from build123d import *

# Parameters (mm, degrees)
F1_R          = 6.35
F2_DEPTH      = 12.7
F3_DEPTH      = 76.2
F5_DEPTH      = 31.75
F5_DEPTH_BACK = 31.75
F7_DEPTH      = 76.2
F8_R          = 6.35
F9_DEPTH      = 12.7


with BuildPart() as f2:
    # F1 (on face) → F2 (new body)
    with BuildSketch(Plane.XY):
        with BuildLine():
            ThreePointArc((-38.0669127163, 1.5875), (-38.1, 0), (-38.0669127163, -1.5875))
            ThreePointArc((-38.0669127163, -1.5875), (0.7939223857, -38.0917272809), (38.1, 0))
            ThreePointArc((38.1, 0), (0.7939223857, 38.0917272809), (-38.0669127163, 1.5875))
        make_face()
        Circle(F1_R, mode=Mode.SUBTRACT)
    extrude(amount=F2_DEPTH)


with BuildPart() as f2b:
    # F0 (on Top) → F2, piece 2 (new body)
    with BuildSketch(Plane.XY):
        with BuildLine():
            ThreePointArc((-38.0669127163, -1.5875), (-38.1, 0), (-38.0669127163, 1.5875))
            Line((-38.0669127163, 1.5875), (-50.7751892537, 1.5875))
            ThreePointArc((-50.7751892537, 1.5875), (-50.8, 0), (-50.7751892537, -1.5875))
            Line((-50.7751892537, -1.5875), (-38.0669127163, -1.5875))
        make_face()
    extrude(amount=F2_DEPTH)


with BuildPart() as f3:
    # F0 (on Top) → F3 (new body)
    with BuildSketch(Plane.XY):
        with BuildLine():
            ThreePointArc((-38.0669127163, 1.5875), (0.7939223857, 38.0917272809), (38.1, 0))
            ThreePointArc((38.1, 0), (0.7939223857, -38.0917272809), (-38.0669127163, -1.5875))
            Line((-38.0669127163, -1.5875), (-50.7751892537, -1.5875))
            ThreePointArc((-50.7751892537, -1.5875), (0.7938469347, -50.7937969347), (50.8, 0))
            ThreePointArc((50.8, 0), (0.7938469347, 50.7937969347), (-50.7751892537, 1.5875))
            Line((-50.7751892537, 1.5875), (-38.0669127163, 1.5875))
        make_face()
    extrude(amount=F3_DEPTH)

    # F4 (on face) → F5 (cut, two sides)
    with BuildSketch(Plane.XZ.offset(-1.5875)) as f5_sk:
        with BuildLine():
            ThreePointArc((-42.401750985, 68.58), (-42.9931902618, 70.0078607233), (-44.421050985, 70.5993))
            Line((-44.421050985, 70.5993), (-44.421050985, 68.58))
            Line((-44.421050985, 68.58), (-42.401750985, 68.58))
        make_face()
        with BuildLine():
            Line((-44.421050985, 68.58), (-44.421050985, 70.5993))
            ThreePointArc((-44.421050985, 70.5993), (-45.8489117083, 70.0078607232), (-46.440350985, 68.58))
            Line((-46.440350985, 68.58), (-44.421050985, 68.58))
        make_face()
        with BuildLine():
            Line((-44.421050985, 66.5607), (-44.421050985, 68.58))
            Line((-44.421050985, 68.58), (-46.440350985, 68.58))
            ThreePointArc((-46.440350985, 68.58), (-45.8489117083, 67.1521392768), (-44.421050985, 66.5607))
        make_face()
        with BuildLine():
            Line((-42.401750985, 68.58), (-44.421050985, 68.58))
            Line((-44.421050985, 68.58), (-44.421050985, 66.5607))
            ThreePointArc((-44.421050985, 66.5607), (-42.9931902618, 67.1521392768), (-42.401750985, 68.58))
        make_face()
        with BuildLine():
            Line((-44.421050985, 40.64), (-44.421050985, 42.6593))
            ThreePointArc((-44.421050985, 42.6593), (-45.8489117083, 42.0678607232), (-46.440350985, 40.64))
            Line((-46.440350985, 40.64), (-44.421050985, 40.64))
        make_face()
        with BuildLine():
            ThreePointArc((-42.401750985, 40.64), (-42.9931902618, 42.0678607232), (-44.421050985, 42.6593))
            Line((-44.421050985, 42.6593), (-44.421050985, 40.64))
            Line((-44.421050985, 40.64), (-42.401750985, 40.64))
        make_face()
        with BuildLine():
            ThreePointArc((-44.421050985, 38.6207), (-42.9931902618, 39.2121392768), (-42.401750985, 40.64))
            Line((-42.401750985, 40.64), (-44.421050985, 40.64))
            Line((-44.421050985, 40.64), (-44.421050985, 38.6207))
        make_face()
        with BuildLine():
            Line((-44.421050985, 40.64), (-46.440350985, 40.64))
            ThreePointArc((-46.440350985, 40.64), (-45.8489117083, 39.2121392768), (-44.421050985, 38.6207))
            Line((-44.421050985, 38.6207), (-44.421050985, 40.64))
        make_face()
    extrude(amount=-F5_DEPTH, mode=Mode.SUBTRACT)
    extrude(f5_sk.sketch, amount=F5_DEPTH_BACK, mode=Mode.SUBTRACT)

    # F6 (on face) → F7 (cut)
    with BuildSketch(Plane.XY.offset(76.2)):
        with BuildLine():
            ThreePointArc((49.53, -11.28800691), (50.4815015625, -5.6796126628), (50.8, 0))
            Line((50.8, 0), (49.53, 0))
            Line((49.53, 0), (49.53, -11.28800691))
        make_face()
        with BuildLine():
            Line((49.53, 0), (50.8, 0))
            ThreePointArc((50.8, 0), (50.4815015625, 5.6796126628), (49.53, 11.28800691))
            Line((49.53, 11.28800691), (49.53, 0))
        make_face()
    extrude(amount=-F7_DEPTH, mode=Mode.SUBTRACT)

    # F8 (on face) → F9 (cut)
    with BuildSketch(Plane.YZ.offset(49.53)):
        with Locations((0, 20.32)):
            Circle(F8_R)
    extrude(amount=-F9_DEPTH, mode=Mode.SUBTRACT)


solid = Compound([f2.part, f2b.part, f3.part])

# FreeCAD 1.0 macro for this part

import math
import FreeCAD as App
import Part
import Sketcher

V = App.Vector
Q = App.Units.Quantity

doc = App.newDocument("Part")
params = doc.addObject("Spreadsheet::Sheet", "Params")
for row, (alias, value) in enumerate([
    ("sketch1_diameter", "0.5 in"),
    ("sketch1_radius", "1.5 in"),
    ("pad1_length", "0.5 in"),
    ("sketch2_radius", "2 in"),
    ("sketch2_radius2", "1.5 in"),
    ("pad2_length", "0.5 in"),
    ("sketch3_radius", "2 in"),
    ("sketch3_radius2", "1.5 in"),
    ("pad3_length", "3 in"),
    ("sketch5_radius", "2 in"),
    ("pocket2_length", "3 in"),
    ("sketch6_diameter", "0.5 in"),
    ("pocket3_length", "0.5 in"),
], start=1):
    params.set(f"A{row}", alias)
    params.set(f"B{row}", "=" + value)
    params.setAlias(f"B{row}", alias)

body = doc.addObject("PartDesign::Body", "Body")

# Sketch on XY plane
sketch1 = body.newObject("Sketcher::SketchObject", "Sketch")
sketch1.AttachmentSupport = (doc.getObject("XY_Plane"), [""])
sketch1.MapMode = "FlatFace"
sketch1.addGeometry([
    Part.ArcOfCircle(Part.Circle(V(0, 0, 0), V(0, 0, 1), 38.1), math.radians(177.61), math.radians(182.39)),
    Part.ArcOfCircle(Part.Circle(V(0, 0, 0), V(0, 0, 1), 38.1), math.radians(-178), math.radians(0)),
    Part.ArcOfCircle(Part.Circle(V(0, 0, 0), V(0, 0, 1), 38.1), math.radians(0), math.radians(178)),
    Part.Circle(V(0, 0, 0), V(0, 0, 1), 6.3),
], False)
sketch1.addConstraint([
    Sketcher.Constraint("Tangent", 0, 2, 1, 1),
    Sketcher.Constraint("Tangent", 1, 2, 2, 1),
    Sketcher.Constraint("Coincident", 2, 2, 0, 1),
    Sketcher.Constraint("Coincident", 0, 3, -1, 1),
    Sketcher.Constraint("Coincident", 3, 3, -1, 1),
    Sketcher.Constraint("Equal", 0, 1),
    Sketcher.Constraint("PointOnObject", 1, 2, -1),
    Sketcher.Constraint("Vertical", 0, 2, 2, 2),
    Sketcher.Constraint("Diameter", 3, Q("0.5 in")),
    Sketcher.Constraint("Radius", 0, Q("1.5 in")),
    Sketcher.Constraint("DistanceY", 0, 2, -1, 1, Q("0.0625 in")),
])
sketch1.setExpression("Constraints[8]", "Params.sketch1_diameter")
sketch1.setExpression("Constraints[9]", "Params.sketch1_radius")
pad1 = body.newObject("PartDesign::Pad", "Pad")
pad1.Profile = sketch1
pad1.setExpression("Length", "Params.pad1_length")
body2 = doc.addObject("PartDesign::Body", "Body001")

# Sketch on XY plane
sketch2 = body2.newObject("Sketcher::SketchObject", "Sketch001")
sketch2.AttachmentSupport = (doc.getObject("XY_Plane001"), [""])
sketch2.MapMode = "FlatFace"
sketch2.addGeometry([
    Part.ArcOfCircle(Part.Circle(V(0, 0, 0), V(0, 0, 1), 38.1), math.radians(177.61), math.radians(182.39)),
    Part.LineSegment(V(-38.1, 1.6, 0), V(-50.8, 1.6, 0)),
    Part.ArcOfCircle(Part.Circle(V(0, 0, 0), V(0, 0, 1), 50.8), math.radians(178.21), math.radians(181.79)),
    Part.LineSegment(V(-50.8, -1.6, 0), V(-38.1, -1.6, 0)),
], False)
sketch2.addConstraint([
    Sketcher.Constraint("Coincident", 0, 1, 1, 1),
    Sketcher.Constraint("Coincident", 1, 2, 2, 1),
    Sketcher.Constraint("Coincident", 2, 2, 3, 1),
    Sketcher.Constraint("Coincident", 3, 2, 0, 2),
    Sketcher.Constraint("Horizontal", 1),
    Sketcher.Constraint("Horizontal", 3),
    Sketcher.Constraint("Coincident", 0, 3, -1, 1),
    Sketcher.Constraint("Coincident", 2, 3, -1, 1),
    Sketcher.Constraint("Vertical", 1, 2, 2, 2),
    Sketcher.Constraint("Radius", 2, Q("2 in")),
    Sketcher.Constraint("Radius", 0, Q("1.5 in")),
    Sketcher.Constraint("DistanceY", -1, 1, 0, 1, Q("0.0625 in")),
])
sketch2.setExpression("Constraints[9]", "Params.sketch2_radius")
sketch2.setExpression("Constraints[10]", "Params.sketch2_radius2")
pad2 = body2.newObject("PartDesign::Pad", "Pad001")
pad2.Profile = sketch2
pad2.setExpression("Length", "Params.pad2_length")
body3 = doc.addObject("PartDesign::Body", "Body002")

# Sketch on XY plane
sketch3 = body3.newObject("Sketcher::SketchObject", "Sketch002")
sketch3.AttachmentSupport = (doc.getObject("XY_Plane002"), [""])
sketch3.MapMode = "FlatFace"
sketch3.addGeometry([
    Part.ArcOfCircle(Part.Circle(V(0, 0, 0), V(0, 0, 1), 38.1), math.radians(0), math.radians(178)),  # 0
    Part.ArcOfCircle(Part.Circle(V(0, 0, 0), V(0, 0, 1), 38.1), math.radians(-178), math.radians(0)),  # 1
    Part.LineSegment(V(-38.1, -1.6, 0), V(-50.8, -1.6, 0)),  # 2
    Part.ArcOfCircle(Part.Circle(V(0, 0, 0), V(0, 0, 1), 50.8), math.radians(-178), math.radians(178)),  # 3
    Part.LineSegment(V(-50.8, 1.6, 0), V(-38.1, 1.6, 0)),  # 4
], False)
sketch3.addConstraint([
    Sketcher.Constraint("Tangent", 0, 1, 1, 2),
    Sketcher.Constraint("Coincident", 1, 1, 2, 1),
    Sketcher.Constraint("Coincident", 2, 2, 3, 1),
    Sketcher.Constraint("Coincident", 3, 2, 4, 1),
    Sketcher.Constraint("Coincident", 4, 2, 0, 2),
    Sketcher.Constraint("Horizontal", 2),
    Sketcher.Constraint("Horizontal", 4),
    Sketcher.Constraint("Coincident", 0, 3, -1, 1),
    Sketcher.Constraint("Coincident", 3, 3, -1, 1),
    Sketcher.Constraint("Equal", 0, 1),
    Sketcher.Constraint("PointOnObject", 0, 1, -1),
    Sketcher.Constraint("Vertical", 2, 2, 3, 2),
    Sketcher.Constraint("Radius", 3, Q("2 in")),
    Sketcher.Constraint("Radius", 0, Q("1.5 in")),
    Sketcher.Constraint("DistanceY", 1, 1, -1, 1, Q("0.0625 in")),
])
sketch3.setExpression("Constraints[12]", "Params.sketch3_radius")
sketch3.setExpression("Constraints[13]", "Params.sketch3_radius2")
pad3 = body3.newObject("PartDesign::Pad", "Pad002")
pad3.Profile = sketch3
pad3.setExpression("Length", "Params.pad3_length")

# Sketch on XZ plane
sketch4 = body3.newObject("Sketcher::SketchObject", "Sketch003")
sketch4.AttachmentSupport = (doc.getObject("XZ_Plane002"), [""])
sketch4.MapMode = "FlatFace"
sketch4.AttachmentOffset = App.Placement(V(0, 0, -0.0625 * 25.4), App.Rotation())
sketch4.addGeometry([
    Part.ArcOfCircle(Part.Circle(V(-44.4, 68.6, 0), V(0, 0, 1), 2), math.radians(0), math.radians(270)),  # 0
    Part.ArcOfCircle(Part.Circle(V(-44.4, 68.6, 0), V(0, 0, 1), 2), math.radians(-90), math.radians(0)),  # 1
    Part.ArcOfCircle(Part.Circle(V(-44.4, 40.6, 0), V(0, 0, 1), 2), math.radians(90), math.radians(270)),  # 2
    Part.ArcOfCircle(Part.Circle(V(-44.4, 40.6, 0), V(0, 0, 1), 2), math.radians(-90), math.radians(0)),  # 3
    Part.ArcOfCircle(Part.Circle(V(-44.4, 40.6, 0), V(0, 0, 1), 2), math.radians(0), math.radians(90)),  # 4
], False)
sketch4.addConstraint([
    Sketcher.Constraint("Tangent", 0, 1, 1, 2),
    Sketcher.Constraint("Coincident", 1, 1, 0, 2),
    Sketcher.Constraint("Tangent", 2, 2, 3, 1),
    Sketcher.Constraint("Tangent", 3, 2, 4, 1),
    Sketcher.Constraint("Tangent", 4, 2, 2, 1),
    Sketcher.Constraint("Equal", 1, 2),
    Sketcher.Constraint("Horizontal", 1, 3, 0, 1),
    Sketcher.Constraint("Horizontal", 4, 3, 3, 2),
    Sketcher.Constraint("Vertical", 1, 3, 2, 3),
    Sketcher.Constraint("Vertical", 4, 3, 1, 1),
    Sketcher.Constraint("Vertical", 1, 1, 2, 2),
    Sketcher.Constraint("Vertical", 2, 2, 4, 2),
    Sketcher.Constraint("DistanceY", -1, 1, 0, 3, Q("2.7 in")),
    Sketcher.Constraint("DistanceY", -1, 1, 2, 3, Q("1.6 in")),
    Sketcher.Constraint("Radius", 0, Q("0.0795 in")),
    Sketcher.Constraint("DistanceX", 0, 3, -1, 1, 44.421051),
])
pocket1 = body3.newObject("PartDesign::Pocket", "Pocket")
pocket1.Profile = sketch4
pocket1.Type = "ThroughAll"
pocket1.Midplane = True

# Sketch on XY plane
sketch5 = body3.newObject("Sketcher::SketchObject", "Sketch004")
sketch5.AttachmentSupport = (doc.getObject("XY_Plane002"), [""])
sketch5.MapMode = "FlatFace"
sketch5.AttachmentOffset = App.Placement(V(0, 0, 3 * 25.4), App.Rotation())
sketch5.addGeometry([
    Part.ArcOfCircle(Part.Circle(V(0, 0, 0), V(0, 0, 1), 51), math.radians(-12.84), math.radians(0)),
    Part.ArcOfCircle(Part.Circle(V(0, 0, 0), V(0, 0, 1), 51), math.radians(0), math.radians(12.84)),
    Part.LineSegment(V(50, 11, 0), V(50, -11, 0)),
], False)
sketch5.addConstraint([
    Sketcher.Constraint("Tangent", 0, 2, 1, 1),
    Sketcher.Constraint("Coincident", 1, 2, 2, 1),
    Sketcher.Constraint("Coincident", 2, 2, 0, 1),
    Sketcher.Constraint("Vertical", 2),
    Sketcher.Constraint("Coincident", 0, 3, -1, 1),
    Sketcher.Constraint("Equal", 0, 1),
    Sketcher.Constraint("PointOnObject", 0, 2, -1),
    Sketcher.Constraint("Radius", 0, Q("2 in")),
    Sketcher.Constraint("DistanceX", -1, 1, 1, 2, Q("1.95 in")),
])
sketch5.setExpression("Constraints[7]", "Params.sketch5_radius")
pocket2 = body3.newObject("PartDesign::Pocket", "Pocket001")
pocket2.Profile = sketch5
pocket2.setExpression("Length", "Params.pocket2_length")

# Sketch on YZ plane
sketch6 = body3.newObject("Sketcher::SketchObject", "Sketch005")
sketch6.AttachmentSupport = (doc.getObject("YZ_Plane002"), [""])
sketch6.MapMode = "FlatFace"
sketch6.AttachmentOffset = App.Placement(V(0, 0, 1.95 * 25.4), App.Rotation())
sketch6.addGeometry(Part.Circle(V(0, 20, 0), V(0, 0, 1), 6), False)
sketch6.addConstraint([
    Sketcher.Constraint("PointOnObject", 0, 3, -2),
    Sketcher.Constraint("Diameter", 0, Q("0.5 in")),
    Sketcher.Constraint("DistanceY", -1, 1, 0, 3, Q("0.8 in")),
])
sketch6.setExpression("Constraints[1]", "Params.sketch6_diameter")
pocket3 = body3.newObject("PartDesign::Pocket", "Pocket002")
pocket3.Profile = sketch6
pocket3.setExpression("Length", "Params.pocket3_length")

doc.recompute()
